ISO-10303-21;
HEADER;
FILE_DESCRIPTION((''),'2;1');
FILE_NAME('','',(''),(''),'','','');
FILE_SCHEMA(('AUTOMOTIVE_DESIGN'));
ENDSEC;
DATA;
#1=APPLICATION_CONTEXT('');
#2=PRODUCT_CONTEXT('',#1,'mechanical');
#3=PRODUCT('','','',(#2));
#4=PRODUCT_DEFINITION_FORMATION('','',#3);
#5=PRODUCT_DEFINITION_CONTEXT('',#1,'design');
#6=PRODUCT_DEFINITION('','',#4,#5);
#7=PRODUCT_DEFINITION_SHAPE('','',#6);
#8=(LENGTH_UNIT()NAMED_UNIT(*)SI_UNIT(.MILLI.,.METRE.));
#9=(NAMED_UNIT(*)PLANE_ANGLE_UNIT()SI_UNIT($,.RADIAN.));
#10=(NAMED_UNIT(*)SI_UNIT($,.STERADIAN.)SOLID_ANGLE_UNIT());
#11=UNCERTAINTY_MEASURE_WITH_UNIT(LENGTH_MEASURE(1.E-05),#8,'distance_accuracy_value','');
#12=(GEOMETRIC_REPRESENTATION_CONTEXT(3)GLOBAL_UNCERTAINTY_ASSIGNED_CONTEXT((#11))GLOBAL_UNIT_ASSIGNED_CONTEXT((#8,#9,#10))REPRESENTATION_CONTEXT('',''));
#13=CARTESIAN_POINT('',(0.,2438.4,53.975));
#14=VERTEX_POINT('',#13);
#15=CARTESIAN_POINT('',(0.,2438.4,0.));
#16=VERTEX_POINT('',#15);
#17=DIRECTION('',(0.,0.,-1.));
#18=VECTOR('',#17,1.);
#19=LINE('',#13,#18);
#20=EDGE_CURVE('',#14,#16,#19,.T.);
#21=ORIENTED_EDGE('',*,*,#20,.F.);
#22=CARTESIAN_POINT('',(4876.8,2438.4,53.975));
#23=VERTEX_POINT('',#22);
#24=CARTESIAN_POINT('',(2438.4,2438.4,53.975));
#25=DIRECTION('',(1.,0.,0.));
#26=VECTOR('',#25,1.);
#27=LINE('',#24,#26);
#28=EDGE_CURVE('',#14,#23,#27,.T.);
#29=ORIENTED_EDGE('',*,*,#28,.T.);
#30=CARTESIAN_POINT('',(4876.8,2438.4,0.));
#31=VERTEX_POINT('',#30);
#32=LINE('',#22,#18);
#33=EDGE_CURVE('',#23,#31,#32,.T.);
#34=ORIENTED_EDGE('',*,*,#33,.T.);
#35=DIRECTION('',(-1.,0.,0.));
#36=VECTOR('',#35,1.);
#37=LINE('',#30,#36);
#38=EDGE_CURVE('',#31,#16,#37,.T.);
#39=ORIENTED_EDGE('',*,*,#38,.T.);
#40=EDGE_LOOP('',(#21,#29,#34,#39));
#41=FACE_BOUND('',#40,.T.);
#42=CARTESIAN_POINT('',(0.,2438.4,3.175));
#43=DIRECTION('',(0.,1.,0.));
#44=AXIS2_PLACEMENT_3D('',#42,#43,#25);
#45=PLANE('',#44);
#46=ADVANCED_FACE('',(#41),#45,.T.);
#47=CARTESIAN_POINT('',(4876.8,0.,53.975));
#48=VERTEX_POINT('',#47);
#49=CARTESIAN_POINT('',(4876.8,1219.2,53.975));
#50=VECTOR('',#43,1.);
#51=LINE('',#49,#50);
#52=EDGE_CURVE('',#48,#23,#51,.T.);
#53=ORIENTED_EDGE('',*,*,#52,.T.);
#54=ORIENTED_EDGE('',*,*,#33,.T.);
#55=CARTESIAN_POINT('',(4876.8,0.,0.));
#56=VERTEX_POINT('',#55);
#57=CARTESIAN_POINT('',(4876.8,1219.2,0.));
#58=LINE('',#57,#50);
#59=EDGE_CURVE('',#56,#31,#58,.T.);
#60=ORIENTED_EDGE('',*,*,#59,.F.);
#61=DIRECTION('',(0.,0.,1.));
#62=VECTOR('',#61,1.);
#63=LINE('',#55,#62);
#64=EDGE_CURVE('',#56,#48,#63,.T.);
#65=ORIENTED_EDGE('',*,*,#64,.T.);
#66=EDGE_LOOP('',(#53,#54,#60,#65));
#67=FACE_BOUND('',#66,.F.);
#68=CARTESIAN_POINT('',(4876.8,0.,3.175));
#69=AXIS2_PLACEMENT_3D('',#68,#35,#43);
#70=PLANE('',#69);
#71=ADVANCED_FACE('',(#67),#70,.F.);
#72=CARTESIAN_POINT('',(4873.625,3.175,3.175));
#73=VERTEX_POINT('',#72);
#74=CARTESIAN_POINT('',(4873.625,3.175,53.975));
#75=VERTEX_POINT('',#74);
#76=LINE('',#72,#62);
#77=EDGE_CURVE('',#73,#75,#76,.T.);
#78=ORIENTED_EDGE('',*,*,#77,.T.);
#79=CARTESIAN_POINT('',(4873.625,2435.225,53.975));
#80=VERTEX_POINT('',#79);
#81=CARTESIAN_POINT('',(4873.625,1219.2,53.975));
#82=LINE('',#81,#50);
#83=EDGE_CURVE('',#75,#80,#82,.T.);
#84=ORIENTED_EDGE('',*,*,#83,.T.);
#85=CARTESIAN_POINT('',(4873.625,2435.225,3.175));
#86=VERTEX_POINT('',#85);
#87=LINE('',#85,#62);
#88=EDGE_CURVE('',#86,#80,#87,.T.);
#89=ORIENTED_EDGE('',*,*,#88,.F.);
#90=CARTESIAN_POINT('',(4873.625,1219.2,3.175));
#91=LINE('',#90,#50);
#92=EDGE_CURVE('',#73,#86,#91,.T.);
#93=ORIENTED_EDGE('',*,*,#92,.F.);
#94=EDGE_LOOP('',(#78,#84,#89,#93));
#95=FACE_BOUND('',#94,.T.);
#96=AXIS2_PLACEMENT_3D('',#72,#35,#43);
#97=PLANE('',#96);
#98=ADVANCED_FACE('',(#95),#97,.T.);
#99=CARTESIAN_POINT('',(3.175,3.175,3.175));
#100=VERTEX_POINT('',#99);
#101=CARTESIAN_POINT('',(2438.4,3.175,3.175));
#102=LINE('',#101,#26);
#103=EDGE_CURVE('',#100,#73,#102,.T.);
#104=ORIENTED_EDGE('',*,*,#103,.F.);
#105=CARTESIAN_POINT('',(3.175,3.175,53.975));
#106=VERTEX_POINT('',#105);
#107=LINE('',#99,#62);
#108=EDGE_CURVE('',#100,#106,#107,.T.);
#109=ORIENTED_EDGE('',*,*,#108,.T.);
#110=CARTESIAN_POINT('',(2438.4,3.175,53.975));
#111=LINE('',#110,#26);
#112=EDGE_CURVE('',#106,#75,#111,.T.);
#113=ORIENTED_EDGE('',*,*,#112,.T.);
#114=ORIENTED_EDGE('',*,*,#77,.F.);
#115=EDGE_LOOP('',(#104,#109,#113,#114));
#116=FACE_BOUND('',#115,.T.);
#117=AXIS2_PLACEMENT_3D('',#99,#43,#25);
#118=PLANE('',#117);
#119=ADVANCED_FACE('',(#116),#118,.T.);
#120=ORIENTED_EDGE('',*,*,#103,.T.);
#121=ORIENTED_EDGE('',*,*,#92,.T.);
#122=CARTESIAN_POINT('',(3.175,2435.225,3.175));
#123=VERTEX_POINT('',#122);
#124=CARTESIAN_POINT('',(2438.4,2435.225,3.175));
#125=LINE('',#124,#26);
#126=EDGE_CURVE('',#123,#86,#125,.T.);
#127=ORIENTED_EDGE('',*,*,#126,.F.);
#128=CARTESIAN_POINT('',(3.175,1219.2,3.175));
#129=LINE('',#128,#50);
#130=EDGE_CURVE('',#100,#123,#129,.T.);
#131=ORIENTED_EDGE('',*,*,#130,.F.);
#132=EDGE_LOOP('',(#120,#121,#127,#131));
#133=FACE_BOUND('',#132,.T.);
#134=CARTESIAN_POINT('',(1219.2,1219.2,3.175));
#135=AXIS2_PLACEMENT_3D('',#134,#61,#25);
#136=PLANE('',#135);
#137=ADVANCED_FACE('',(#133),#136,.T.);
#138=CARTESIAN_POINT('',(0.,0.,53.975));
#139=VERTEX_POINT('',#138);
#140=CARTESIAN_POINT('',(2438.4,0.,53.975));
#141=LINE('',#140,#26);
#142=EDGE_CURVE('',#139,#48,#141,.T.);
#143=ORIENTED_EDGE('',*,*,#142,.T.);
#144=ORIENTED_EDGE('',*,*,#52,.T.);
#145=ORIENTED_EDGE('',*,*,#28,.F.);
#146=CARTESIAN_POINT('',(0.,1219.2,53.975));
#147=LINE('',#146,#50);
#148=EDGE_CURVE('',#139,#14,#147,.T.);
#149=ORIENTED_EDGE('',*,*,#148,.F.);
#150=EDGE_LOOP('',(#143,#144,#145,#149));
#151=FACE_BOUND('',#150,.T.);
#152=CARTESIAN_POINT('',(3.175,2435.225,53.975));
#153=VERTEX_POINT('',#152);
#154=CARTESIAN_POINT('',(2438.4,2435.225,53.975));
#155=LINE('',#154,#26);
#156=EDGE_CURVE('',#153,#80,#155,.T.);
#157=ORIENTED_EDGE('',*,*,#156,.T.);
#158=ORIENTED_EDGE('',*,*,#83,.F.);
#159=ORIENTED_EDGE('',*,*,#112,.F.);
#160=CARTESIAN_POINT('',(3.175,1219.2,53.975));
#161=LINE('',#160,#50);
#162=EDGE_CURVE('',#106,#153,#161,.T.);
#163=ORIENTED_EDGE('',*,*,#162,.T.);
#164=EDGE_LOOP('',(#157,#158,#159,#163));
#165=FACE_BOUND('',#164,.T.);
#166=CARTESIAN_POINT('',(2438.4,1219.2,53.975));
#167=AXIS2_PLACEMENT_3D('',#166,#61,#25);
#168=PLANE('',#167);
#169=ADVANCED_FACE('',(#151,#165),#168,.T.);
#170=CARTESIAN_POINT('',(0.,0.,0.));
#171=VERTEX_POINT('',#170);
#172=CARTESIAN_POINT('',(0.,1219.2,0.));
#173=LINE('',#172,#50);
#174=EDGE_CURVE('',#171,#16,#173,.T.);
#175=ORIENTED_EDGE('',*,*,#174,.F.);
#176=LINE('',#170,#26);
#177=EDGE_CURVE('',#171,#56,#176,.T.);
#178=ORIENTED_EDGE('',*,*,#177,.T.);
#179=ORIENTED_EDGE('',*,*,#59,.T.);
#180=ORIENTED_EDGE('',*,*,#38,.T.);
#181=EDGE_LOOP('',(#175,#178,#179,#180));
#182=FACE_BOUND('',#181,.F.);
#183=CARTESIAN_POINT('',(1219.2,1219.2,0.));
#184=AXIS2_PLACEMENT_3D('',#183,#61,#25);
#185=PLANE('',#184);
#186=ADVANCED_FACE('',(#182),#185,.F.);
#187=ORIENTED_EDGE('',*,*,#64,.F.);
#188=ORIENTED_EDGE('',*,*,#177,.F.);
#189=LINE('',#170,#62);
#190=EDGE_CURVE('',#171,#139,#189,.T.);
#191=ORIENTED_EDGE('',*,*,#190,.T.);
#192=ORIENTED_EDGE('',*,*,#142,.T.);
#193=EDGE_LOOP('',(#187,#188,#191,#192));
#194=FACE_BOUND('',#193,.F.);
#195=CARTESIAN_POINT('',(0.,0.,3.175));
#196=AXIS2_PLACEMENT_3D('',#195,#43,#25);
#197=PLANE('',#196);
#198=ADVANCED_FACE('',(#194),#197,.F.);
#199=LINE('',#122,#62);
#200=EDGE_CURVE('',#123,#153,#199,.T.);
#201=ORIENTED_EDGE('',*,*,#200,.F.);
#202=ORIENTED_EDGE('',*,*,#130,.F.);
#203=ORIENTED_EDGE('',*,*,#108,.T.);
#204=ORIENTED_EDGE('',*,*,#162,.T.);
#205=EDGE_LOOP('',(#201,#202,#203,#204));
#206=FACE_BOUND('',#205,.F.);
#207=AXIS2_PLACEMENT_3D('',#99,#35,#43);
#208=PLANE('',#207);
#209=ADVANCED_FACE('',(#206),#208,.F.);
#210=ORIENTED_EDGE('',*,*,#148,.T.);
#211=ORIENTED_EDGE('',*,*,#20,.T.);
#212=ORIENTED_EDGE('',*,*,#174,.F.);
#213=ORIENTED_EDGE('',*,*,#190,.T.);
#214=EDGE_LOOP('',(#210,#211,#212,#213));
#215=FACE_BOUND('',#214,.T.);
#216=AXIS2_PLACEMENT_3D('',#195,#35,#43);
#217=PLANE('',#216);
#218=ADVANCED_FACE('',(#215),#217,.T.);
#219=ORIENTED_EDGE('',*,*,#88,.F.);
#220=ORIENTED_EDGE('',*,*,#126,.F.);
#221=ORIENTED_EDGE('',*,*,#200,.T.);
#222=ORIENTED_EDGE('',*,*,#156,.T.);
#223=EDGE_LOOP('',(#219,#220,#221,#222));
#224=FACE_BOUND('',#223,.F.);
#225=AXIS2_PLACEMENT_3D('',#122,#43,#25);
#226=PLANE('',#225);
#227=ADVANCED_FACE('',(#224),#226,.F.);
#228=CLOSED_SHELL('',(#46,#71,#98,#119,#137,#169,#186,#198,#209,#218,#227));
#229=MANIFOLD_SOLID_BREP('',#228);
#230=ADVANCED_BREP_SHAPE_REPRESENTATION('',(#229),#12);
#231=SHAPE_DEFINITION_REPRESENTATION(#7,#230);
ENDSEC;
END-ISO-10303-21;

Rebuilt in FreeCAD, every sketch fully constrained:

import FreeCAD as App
import Part
import Sketcher
from FreeCAD import Vector
Q = App.Units.Quantity

doc = App.newDocument("Part")
params = doc.addObject("Spreadsheet::Sheet", "Params")
for row, (alias, value) in enumerate([
    ("sketch1_width", "192 in"),
    ("sketch1_height", "96 in"),
    ("pad1_length", "0.125 in"),
    ("sketch2_width", "192 in"),
    ("sketch2_height", "96 in"),
    ("sketch2_width2", "191.75 in"),
    ("sketch2_height2", "95.75 in"),
    ("pad2_length", "2 in"),
], start=1):
    params.set(f"A{row}", alias)
    params.set(f"B{row}", "=" + value)
    params.setAlias(f"B{row}", alias)

body = doc.addObject("PartDesign::Body", "Body")

# Sketch on XY plane
sketch1 = doc.addObject("Sketcher::SketchObject", "Sketch")
body.addObject(sketch1)
sketch1.AttachmentSupport = (doc.XY_Plane, [""])
sketch1.MapMode = "FlatFace"
sketch1.addGeometry(Part.LineSegment(Vector(0, 2438.4, 0), Vector(0, 0, 0)), False)
sketch1.addGeometry(Part.LineSegment(Vector(0, 0, 0), Vector(4876.8, 0, 0)), False)
sketch1.addGeometry(Part.LineSegment(Vector(4876.8, 0, 0), Vector(4876.8, 2438.4, 0)), False)
sketch1.addGeometry(Part.LineSegment(Vector(4876.8, 2438.4, 0), Vector(0, 2438.4, 0)), False)
sketch1.addConstraint(Sketcher.Constraint("Coincident", 0, 2, 1, 1))
sketch1.addConstraint(Sketcher.Constraint("Coincident", 1, 2, 2, 1))
sketch1.addConstraint(Sketcher.Constraint("Coincident", 2, 2, 3, 1))
sketch1.addConstraint(Sketcher.Constraint("Coincident", 3, 2, 0, 1))
sketch1.addConstraint(Sketcher.Constraint("Vertical", 0))
sketch1.addConstraint(Sketcher.Constraint("Horizontal", 1))
sketch1.addConstraint(Sketcher.Constraint("Vertical", 2))
sketch1.addConstraint(Sketcher.Constraint("Horizontal", 3))
sketch1.addConstraint(Sketcher.Constraint("Coincident", 0, 2, -1, 1))
sketch1.addConstraint(Sketcher.Constraint("DistanceX", 1, 1, 1, 2, Q("192 in")))
sketch1.addConstraint(Sketcher.Constraint("DistanceY", 0, 2, 0, 1, Q("96 in")))
sketch1.setExpression("Constraints[9]", "Params.sketch1_width")
sketch1.setExpression("Constraints[10]", "Params.sketch1_height")
pad1 = doc.addObject("PartDesign::Pad", "Pad")
body.addObject(pad1)
pad1.Profile = sketch1
pad1.setExpression("Length", "Params.pad1_length")

# Sketch on XY plane
sketch2 = doc.addObject("Sketcher::SketchObject", "Sketch001")
body.addObject(sketch2)
sketch2.AttachmentSupport = (doc.XY_Plane, [""])
sketch2.MapMode = "FlatFace"
sketch2.AttachmentOffset = App.Placement(Vector(0, 0, 0.125 * 25.4), App.Rotation())
sketch2.addGeometry(Part.LineSegment(Vector(0, 2438.4, 0), Vector(0, 0, 0)), False)
sketch2.addGeometry(Part.LineSegment(Vector(0, 0, 0), Vector(4876.8, 0, 0)), False)
sketch2.addGeometry(Part.LineSegment(Vector(4876.8, 0, 0), Vector(4876.8, 2438.4, 0)), False)
sketch2.addGeometry(Part.LineSegment(Vector(4876.8, 2438.4, 0), Vector(0, 2438.4, 0)), False)
sketch2.addGeometry(Part.LineSegment(Vector(4873.625, 3.175, 0), Vector(3.175, 3.175, 0)), False)
sketch2.addGeometry(Part.LineSegment(Vector(3.175, 3.175, 0), Vector(3.175, 2435.225, 0)), False)
sketch2.addGeometry(Part.LineSegment(Vector(3.175, 2435.225, 0), Vector(4873.625, 2435.225, 0)), False)
sketch2.addGeometry(Part.LineSegment(Vector(4873.625, 2435.225, 0), Vector(4873.625, 3.175, 0)), False)
sketch2.addConstraint(Sketcher.Constraint("Coincident", 0, 2, 1, 1))
sketch2.addConstraint(Sketcher.Constraint("Coincident", 1, 2, 2, 1))
sketch2.addConstraint(Sketcher.Constraint("Coincident", 2, 2, 3, 1))
sketch2.addConstraint(Sketcher.Constraint("Coincident", 3, 2, 0, 1))
sketch2.addConstraint(Sketcher.Constraint("Coincident", 4, 2, 5, 1))
sketch2.addConstraint(Sketcher.Constraint("Coincident", 5, 2, 6, 1))
sketch2.addConstraint(Sketcher.Constraint("Coincident", 6, 2, 7, 1))
sketch2.addConstraint(Sketcher.Constraint("Coincident", 7, 2, 4, 1))
sketch2.addConstraint(Sketcher.Constraint("Vertical", 0))
sketch2.addConstraint(Sketcher.Constraint("Horizontal", 1))
sketch2.addConstraint(Sketcher.Constraint("Vertical", 2))
sketch2.addConstraint(Sketcher.Constraint("Horizontal", 3))
sketch2.addConstraint(Sketcher.Constraint("Horizontal", 4))
sketch2.addConstraint(Sketcher.Constraint("Vertical", 5))
sketch2.addConstraint(Sketcher.Constraint("Horizontal", 6))
sketch2.addConstraint(Sketcher.Constraint("Vertical", 7))
sketch2.addConstraint(Sketcher.Constraint("Coincident", 0, 2, -1, 1))
sketch2.addConstraint(Sketcher.Constraint("DistanceX", 1, 1, 1, 2, Q("192 in")))
sketch2.addConstraint(Sketcher.Constraint("DistanceY", 0, 2, 0, 1, Q("96 in")))
sketch2.addConstraint(Sketcher.Constraint("DistanceX", 4, 2, 4, 1, Q("191.75 in")))
sketch2.addConstraint(Sketcher.Constraint("DistanceY", 5, 1, 5, 2, Q("95.75 in")))
sketch2.addConstraint(Sketcher.Constraint("DistanceX", -1, 1, 4, 2, Q("0.125 in")))
sketch2.addConstraint(Sketcher.Constraint("DistanceY", -1, 1, 4, 2, Q("0.125 in")))
sketch2.setExpression("Constraints[17]", "Params.sketch2_width")
sketch2.setExpression("Constraints[18]", "Params.sketch2_height")
sketch2.setExpression("Constraints[19]", "Params.sketch2_width2")
sketch2.setExpression("Constraints[20]", "Params.sketch2_height2")
pad2 = doc.addObject("PartDesign::Pad", "Pad001")
body.addObject(pad2)
pad2.Profile = sketch2
pad2.setExpression("Length", "Params.pad2_length")

doc.recompute()
